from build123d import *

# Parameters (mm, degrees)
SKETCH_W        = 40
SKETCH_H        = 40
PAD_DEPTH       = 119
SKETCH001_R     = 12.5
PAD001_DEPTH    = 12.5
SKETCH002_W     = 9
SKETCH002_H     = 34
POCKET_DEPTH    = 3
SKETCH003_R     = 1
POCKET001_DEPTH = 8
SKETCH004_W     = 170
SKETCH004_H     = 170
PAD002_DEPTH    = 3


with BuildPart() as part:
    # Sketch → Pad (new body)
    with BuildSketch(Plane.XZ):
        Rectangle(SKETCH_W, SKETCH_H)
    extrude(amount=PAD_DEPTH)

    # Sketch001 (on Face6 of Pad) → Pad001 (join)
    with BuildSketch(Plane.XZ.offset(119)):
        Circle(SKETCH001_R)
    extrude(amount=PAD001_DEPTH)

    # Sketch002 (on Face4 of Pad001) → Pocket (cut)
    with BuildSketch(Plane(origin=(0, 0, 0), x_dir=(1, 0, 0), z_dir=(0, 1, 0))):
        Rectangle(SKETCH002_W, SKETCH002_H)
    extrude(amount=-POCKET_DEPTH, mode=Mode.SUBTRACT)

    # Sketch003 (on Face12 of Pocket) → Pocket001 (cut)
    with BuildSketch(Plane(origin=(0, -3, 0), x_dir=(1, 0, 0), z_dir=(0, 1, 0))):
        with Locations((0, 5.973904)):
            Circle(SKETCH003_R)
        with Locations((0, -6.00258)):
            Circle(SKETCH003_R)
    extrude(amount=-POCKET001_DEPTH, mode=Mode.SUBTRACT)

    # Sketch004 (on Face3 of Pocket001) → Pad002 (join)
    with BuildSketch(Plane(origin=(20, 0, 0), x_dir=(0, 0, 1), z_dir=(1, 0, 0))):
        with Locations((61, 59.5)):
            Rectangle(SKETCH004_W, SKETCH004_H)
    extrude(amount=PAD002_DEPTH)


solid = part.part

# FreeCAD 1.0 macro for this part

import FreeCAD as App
import Part
import Sketcher
from FreeCAD import Vector

doc = App.newDocument("Part")
body = doc.addObject("PartDesign::Body", "Body")

# Sketch on XZ plane
sketch1 = body.newObject("Sketcher::SketchObject", "Sketch")
sketch1.AttachmentSupport = (doc.getObject("XZ_Plane"), [""])
sketch1.MapMode = "FlatFace"
sketch1.addGeometry(Part.LineSegment(Vector(-20, 20, 0), Vector(-20, -20, 0)), False)
sketch1.addGeometry(Part.LineSegment(Vector(-20, -20, 0), Vector(20, -20, 0)), False)
sketch1.addGeometry(Part.LineSegment(Vector(20, -20, 0), Vector(20, 20, 0)), False)
sketch1.addGeometry(Part.LineSegment(Vector(20, 20, 0), Vector(-20, 20, 0)), False)
sketch1.addConstraint(Sketcher.Constraint("Coincident", 0, 2, 1, 1))
sketch1.addConstraint(Sketcher.Constraint("Coincident", 1, 2, 2, 1))
sketch1.addConstraint(Sketcher.Constraint("Coincident", 2, 2, 3, 1))
sketch1.addConstraint(Sketcher.Constraint("Coincident", 3, 2, 0, 1))
sketch1.addConstraint(Sketcher.Constraint("Vertical", 0))
sketch1.addConstraint(Sketcher.Constraint("Horizontal", 1))
sketch1.addConstraint(Sketcher.Constraint("Vertical", 2))
sketch1.addConstraint(Sketcher.Constraint("Horizontal", 3))
sketch1.addConstraint(Sketcher.Constraint("Symmetric", 0, 2, 2, 2, -1, 1))
sketch1.addConstraint(Sketcher.Constraint("Equal", 3, 0))
sketch1.addConstraint(Sketcher.Constraint("DistanceX", 1, 1, 1, 2, 40.0))
pad1 = body.newObject("PartDesign::Pad", "Pad")
pad1.Profile = sketch1
pad1.Length = 119

# Sketch on XZ plane
sketch2 = body.newObject("Sketcher::SketchObject", "Sketch001")
sketch2.AttachmentSupport = (doc.getObject("XZ_Plane"), [""])
sketch2.MapMode = "FlatFace"
sketch2.AttachmentOffset = App.Placement(Vector(0, 0, 119), App.Rotation())
sketch2.addGeometry(Part.Circle(Vector(0, 0, 0), Vector(0, 0, 1), 12.5), False)
sketch2.addConstraint(Sketcher.Constraint("Coincident", 0, 3, -1, 1))
sketch2.addConstraint(Sketcher.Constraint("Diameter", 0, 25.0))
pad2 = body.newObject("PartDesign::Pad", "Pad001")
pad2.Profile = sketch2
pad2.Length = 12.5

# Sketch on XZ plane
sketch3 = body.newObject("Sketcher::SketchObject", "Sketch002")
sketch3.AttachmentSupport = (doc.getObject("XZ_Plane"), [""])
sketch3.MapMode = "FlatFace"
sketch3.addGeometry(Part.LineSegment(Vector(-4.5, -17, 0), Vector(-4.5, 17, 0)), False)
sketch3.addGeometry(Part.LineSegment(Vector(-4.5, 17, 0), Vector(4.5, 17, 0)), False)
sketch3.addGeometry(Part.LineSegment(Vector(4.5, 17, 0), Vector(4.5, -17, 0)), False)
sketch3.addGeometry(Part.LineSegment(Vector(4.5, -17, 0), Vector(-4.5, -17, 0)), False)
sketch3.addConstraint(Sketcher.Constraint("Coincident", 0, 2, 1, 1))
sketch3.addConstraint(Sketcher.Constraint("Coincident", 1, 2, 2, 1))
sketch3.addConstraint(Sketcher.Constraint("Coincident", 2, 2, 3, 1))
sketch3.addConstraint(Sketcher.Constraint("Coincident", 3, 2, 0, 1))
sketch3.addConstraint(Sketcher.Constraint("Vertical", 0))
sketch3.addConstraint(Sketcher.Constraint("Horizontal", 1))
sketch3.addConstraint(Sketcher.Constraint("Vertical", 2))
sketch3.addConstraint(Sketcher.Constraint("Horizontal", 3))
sketch3.addConstraint(Sketcher.Constraint("Symmetric", 0, 2, 2, 2, -1, 1))
sketch3.addConstraint(Sketcher.Constraint("DistanceX", 1, 1, 1, 2, 9.0))
sketch3.addConstraint(Sketcher.Constraint("DistanceY", 0, 1, 0, 2, 34.0))
pocket1 = body.newObject("PartDesign::Pocket", "Pocket")
pocket1.Profile = sketch3
pocket1.Length = 3
pocket1.Reversed = True

# Sketch on XZ plane
sketch4 = body.newObject("Sketcher::SketchObject", "Sketch003")
sketch4.AttachmentSupport = (doc.getObject("XZ_Plane"), [""])
sketch4.MapMode = "FlatFace"
sketch4.AttachmentOffset = App.Placement(Vector(0, 0, 3), App.Rotation())
sketch4.addGeometry(Part.Circle(Vector(0, -5.973904, 0), Vector(0, 0, 1), 1), False)
sketch4.addGeometry(Part.Circle(Vector(0, 6.00258, 0), Vector(0, 0, 1), 1), False)
sketch4.addConstraint(Sketcher.Constraint("Equal", 0, 1))
sketch4.addConstraint(Sketcher.Constraint("PointOnObject", 0, 3, -2))
sketch4.addConstraint(Sketcher.Constraint("PointOnObject", 1, 3, -2))
sketch4.addConstraint(Sketcher.Constraint("Diameter", 0, 2.0))
sketch4.addConstraint(Sketcher.Constraint("DistanceY", -1, 1, 1, 3, 6.00258))
sketch4.addConstraint(Sketcher.Constraint("DistanceY", 0, 3, -1, 1, 5.973904))
pocket2 = body.newObject("PartDesign::Pocket", "Pocket001")
pocket2.Profile = sketch4
pocket2.Length = 8
pocket2.Reversed = True

# Sketch on YZ plane
sketch5 = body.newObject("Sketcher::SketchObject", "Sketch004")
sketch5.AttachmentSupport = (doc.getObject("YZ_Plane"), [""])
sketch5.MapMode = "FlatFace"
sketch5.AttachmentOffset = App.Placement(Vector(0, 0, 20), App.Rotation())
sketch5.addGeometry(Part.LineSegment(Vector(-144.5, -24, 0), Vector(25.5, -24, 0)), False)
sketch5.addGeometry(Part.LineSegment(Vector(25.5, -24, 0), Vector(25.5, 146, 0)), False)
sketch5.addGeometry(Part.LineSegment(Vector(25.5, 146, 0), Vector(-144.5, 146, 0)), False)
sketch5.addGeometry(Part.LineSegment(Vector(-144.5, 146, 0), Vector(-144.5, -24, 0)), False)
sketch5.addConstraint(Sketcher.Constraint("Coincident", 0, 2, 1, 1))
sketch5.addConstraint(Sketcher.Constraint("Coincident", 1, 2, 2, 1))
sketch5.addConstraint(Sketcher.Constraint("Coincident", 2, 2, 3, 1))
sketch5.addConstraint(Sketcher.Constraint("Coincident", 3, 2, 0, 1))
sketch5.addConstraint(Sketcher.Constraint("Horizontal", 0))
sketch5.addConstraint(Sketcher.Constraint("Vertical", 1))
sketch5.addConstraint(Sketcher.Constraint("Horizontal", 2))
sketch5.addConstraint(Sketcher.Constraint("Vertical", 3))
sketch5.addConstraint(Sketcher.Constraint("Equal", 2, 1))
sketch5.addConstraint(Sketcher.Constraint("DistanceX", 0, 1, 0, 2, 170.0))
sketch5.addConstraint(Sketcher.Constraint("DistanceY", 0, 2, -1, 1, 24.0))
sketch5.addConstraint(Sketcher.Constraint("DistanceX", -1, 1, 0, 2, 25.5))
pad3 = body.newObject("PartDesign::Pad", "Pad002")
pad3.Profile = sketch5
pad3.Length = 3

doc.recompute()
